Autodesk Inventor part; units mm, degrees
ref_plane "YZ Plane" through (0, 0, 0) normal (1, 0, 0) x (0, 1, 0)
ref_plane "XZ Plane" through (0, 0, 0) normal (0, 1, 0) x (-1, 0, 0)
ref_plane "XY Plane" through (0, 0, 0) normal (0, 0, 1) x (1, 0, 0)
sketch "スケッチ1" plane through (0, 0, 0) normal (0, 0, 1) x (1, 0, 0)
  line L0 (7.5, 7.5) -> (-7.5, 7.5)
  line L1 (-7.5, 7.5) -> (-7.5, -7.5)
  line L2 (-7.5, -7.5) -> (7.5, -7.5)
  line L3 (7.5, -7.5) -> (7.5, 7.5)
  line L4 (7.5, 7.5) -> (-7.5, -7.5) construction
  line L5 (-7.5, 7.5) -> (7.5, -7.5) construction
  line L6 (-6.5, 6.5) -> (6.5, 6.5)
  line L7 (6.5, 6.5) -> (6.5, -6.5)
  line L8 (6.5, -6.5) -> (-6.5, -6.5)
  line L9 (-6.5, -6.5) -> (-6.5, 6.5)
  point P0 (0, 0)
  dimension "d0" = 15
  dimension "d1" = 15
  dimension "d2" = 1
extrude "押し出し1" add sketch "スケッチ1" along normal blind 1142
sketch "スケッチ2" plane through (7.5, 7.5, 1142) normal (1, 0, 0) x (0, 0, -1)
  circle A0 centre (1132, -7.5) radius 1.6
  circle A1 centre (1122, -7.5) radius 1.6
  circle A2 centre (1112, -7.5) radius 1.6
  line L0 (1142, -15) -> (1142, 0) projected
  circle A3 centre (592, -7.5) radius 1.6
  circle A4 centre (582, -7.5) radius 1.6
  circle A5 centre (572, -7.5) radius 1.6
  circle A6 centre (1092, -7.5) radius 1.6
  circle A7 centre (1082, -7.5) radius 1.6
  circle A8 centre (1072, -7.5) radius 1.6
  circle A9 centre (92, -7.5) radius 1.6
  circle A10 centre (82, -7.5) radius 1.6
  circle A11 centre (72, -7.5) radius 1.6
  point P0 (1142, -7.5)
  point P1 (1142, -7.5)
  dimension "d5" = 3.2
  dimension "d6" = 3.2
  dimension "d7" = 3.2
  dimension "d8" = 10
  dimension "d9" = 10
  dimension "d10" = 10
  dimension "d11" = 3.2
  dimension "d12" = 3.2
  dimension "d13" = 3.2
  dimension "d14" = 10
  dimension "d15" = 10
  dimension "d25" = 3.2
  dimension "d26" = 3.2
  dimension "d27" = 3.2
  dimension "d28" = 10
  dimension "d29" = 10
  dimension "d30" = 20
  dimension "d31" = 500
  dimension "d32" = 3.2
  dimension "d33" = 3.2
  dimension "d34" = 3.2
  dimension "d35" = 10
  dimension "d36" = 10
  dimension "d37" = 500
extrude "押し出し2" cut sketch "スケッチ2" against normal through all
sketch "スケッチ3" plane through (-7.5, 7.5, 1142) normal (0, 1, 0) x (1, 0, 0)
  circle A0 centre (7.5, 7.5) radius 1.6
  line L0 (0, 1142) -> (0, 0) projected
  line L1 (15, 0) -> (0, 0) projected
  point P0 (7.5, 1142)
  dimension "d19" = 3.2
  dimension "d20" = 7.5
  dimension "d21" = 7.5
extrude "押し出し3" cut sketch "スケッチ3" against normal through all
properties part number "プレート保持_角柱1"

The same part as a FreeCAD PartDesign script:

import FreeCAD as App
import Part
import Sketcher


def add_polygon(sketch, points):
    """Adds a closed chain of lines whose ends are joined by coincident constraints."""
    first, n = sketch.GeometryCount, len(points)
    for a, b in zip(points, points[1:] + points[:1]):
        sketch.addGeometry(Part.LineSegment(App.Vector(*a, 0), App.Vector(*b, 0)), False)
    for i in range(n):
        sketch.addConstraint(Sketcher.Constraint("Coincident", first + i, 2, first + (i + 1) % n, 1))

doc = App.newDocument("Part")
body = doc.addObject("PartDesign::Body", "Body")

# Sketch on XY plane
sketch1 = body.newObject("Sketcher::SketchObject", "Sketch")
sketch1.AttachmentSupport = (doc.getObject("XY_Plane"), [""])
sketch1.MapMode = "FlatFace"
add_polygon(sketch1, [(8, -8), (8, 8), (-8, 8), (-8, -8)])  # lines 0-3
add_polygon(sketch1, [(-6, -6), (-6, 6), (6, 6), (6, -6)])  # lines 4-7
sketch1.addConstraint(Sketcher.Constraint("Vertical", 0))
sketch1.addConstraint(Sketcher.Constraint("Horizontal", 1))
sketch1.addConstraint(Sketcher.Constraint("Vertical", 2))
sketch1.addConstraint(Sketcher.Constraint("Horizontal", 3))
sketch1.addConstraint(Sketcher.Constraint("Vertical", 4))
sketch1.addConstraint(Sketcher.Constraint("Horizontal", 5))
sketch1.addConstraint(Sketcher.Constraint("Vertical", 6))
sketch1.addConstraint(Sketcher.Constraint("Horizontal", 7))
sketch1.addConstraint(Sketcher.Constraint("Symmetric", 0, 2, 2, 2, -1, 1))
sketch1.addConstraint(Sketcher.Constraint("Symmetric", 4, 2, 6, 2, -1, 1))
sketch1.addConstraint(Sketcher.Constraint("Equal", 3, 0))
sketch1.addConstraint(Sketcher.Constraint("Equal", 7, 4))
sketch1.addConstraint(Sketcher.Constraint("DistanceX", 1, 2, 1, 1, 15.0))
sketch1.addConstraint(Sketcher.Constraint("DistanceX", 1, 2, 4, 2, 1.0))
pad1 = body.newObject("PartDesign::Pad", "Pad")
pad1.Profile = sketch1
pad1.Length = 1142

# Sketch on YZ plane
sketch2 = body.newObject("Sketcher::SketchObject", "Sketch001")
sketch2.AttachmentSupport = (doc.getObject("YZ_Plane"), [""])
sketch2.MapMode = "FlatFace"
sketch2.AttachmentOffset = App.Placement(App.Vector(0, 0, 7.5), App.Rotation())
sketch2.addGeometry(Part.Circle(App.Vector(0, 10, 0), App.Vector(0, 0, 1), 1.6), False)
sketch2.addGeometry(Part.Circle(App.Vector(0, 20, 0), App.Vector(0, 0, 1), 1.6), False)
sketch2.addGeometry(Part.Circle(App.Vector(0, 30, 0), App.Vector(0, 0, 1), 1.6), False)
sketch2.addGeometry(Part.Circle(App.Vector(0, 550, 0), App.Vector(0, 0, 1), 1.6), False)
sketch2.addGeometry(Part.Circle(App.Vector(0, 560, 0), App.Vector(0, 0, 1), 1.6), False)
sketch2.addGeometry(Part.Circle(App.Vector(0, 570, 0), App.Vector(0, 0, 1), 1.6), False)
sketch2.addGeometry(Part.Circle(App.Vector(0, 50, 0), App.Vector(0, 0, 1), 1.6), False)
sketch2.addGeometry(Part.Circle(App.Vector(0, 60, 0), App.Vector(0, 0, 1), 1.6), False)
sketch2.addGeometry(Part.Circle(App.Vector(0, 70, 0), App.Vector(0, 0, 1), 1.6), False)
sketch2.addGeometry(Part.Circle(App.Vector(0, 1050, 0), App.Vector(0, 0, 1), 1.6), False)
sketch2.addGeometry(Part.Circle(App.Vector(0, 1060, 0), App.Vector(0, 0, 1), 1.6), False)
sketch2.addGeometry(Part.Circle(App.Vector(0, 1070, 0), App.Vector(0, 0, 1), 1.6), False)
sketch2.addConstraint(Sketcher.Constraint("Equal", 0, 1))
sketch2.addConstraint(Sketcher.Constraint("Equal", 1, 2))
sketch2.addConstraint(Sketcher.Constraint("Equal", 2, 3))
sketch2.addConstraint(Sketcher.Constraint("Equal", 3, 4))
sketch2.addConstraint(Sketcher.Constraint("Equal", 4, 5))
sketch2.addConstraint(Sketcher.Constraint("Equal", 5, 6))
sketch2.addConstraint(Sketcher.Constraint("Equal", 6, 7))
sketch2.addConstraint(Sketcher.Constraint("Equal", 7, 8))
sketch2.addConstraint(Sketcher.Constraint("Equal", 8, 9))
sketch2.addConstraint(Sketcher.Constraint("Equal", 9, 10))
sketch2.addConstraint(Sketcher.Constraint("Equal", 10, 11))
sketch2.addConstraint(Sketcher.Constraint("PointOnObject", 0, 3, -2))
sketch2.addConstraint(Sketcher.Constraint("PointOnObject", 1, 3, -2))
sketch2.addConstraint(Sketcher.Constraint("PointOnObject", 2, 3, -2))
sketch2.addConstraint(Sketcher.Constraint("PointOnObject", 3, 3, -2))
sketch2.addConstraint(Sketcher.Constraint("PointOnObject", 4, 3, -2))
sketch2.addConstraint(Sketcher.Constraint("PointOnObject", 5, 3, -2))
sketch2.addConstraint(Sketcher.Constraint("PointOnObject", 6, 3, -2))
sketch2.addConstraint(Sketcher.Constraint("PointOnObject", 7, 3, -2))
sketch2.addConstraint(Sketcher.Constraint("PointOnObject", 8, 3, -2))
sketch2.addConstraint(Sketcher.Constraint("PointOnObject", 9, 3, -2))
sketch2.addConstraint(Sketcher.Constraint("PointOnObject", 10, 3, -2))
sketch2.addConstraint(Sketcher.Constraint("PointOnObject", 11, 3, -2))
sketch2.addConstraint(Sketcher.Constraint("Diameter", 0, 3.2))
sketch2.addConstraint(Sketcher.Constraint("DistanceY", -1, 1, 0, 3, 10.0))
sketch2.addConstraint(Sketcher.Constraint("DistanceY", -1, 1, 1, 3, 20.0))
sketch2.addConstraint(Sketcher.Constraint("DistanceY", 1, 3, 2, 3, 10.0))
sketch2.addConstraint(Sketcher.Constraint("DistanceY", 3, 3, 4, 3, 10.0))
sketch2.addConstraint(Sketcher.Constraint("DistanceY", 4, 3, 5, 3, 10.0))
sketch2.addConstraint(Sketcher.Constraint("DistanceY", 2, 3, 6, 3, 20.0))
sketch2.addConstraint(Sketcher.Constraint("DistanceY", 6, 3, 3, 3, 500.0))
sketch2.addConstraint(Sketcher.Constraint("DistanceY", 6, 3, 7, 3, 10.0))
sketch2.addConstraint(Sketcher.Constraint("DistanceY", 7, 3, 8, 3, 10.0))
sketch2.addConstraint(Sketcher.Constraint("DistanceY", 3, 3, 9, 3, 500.0))
sketch2.addConstraint(Sketcher.Constraint("DistanceY", 9, 3, 10, 3, 10.0))
sketch2.addConstraint(Sketcher.Constraint("DistanceY", 10, 3, 11, 3, 10.0))
pocket1 = body.newObject("PartDesign::Pocket", "Pocket")
pocket1.Profile = sketch2
pocket1.Type = "ThroughAll"

# Sketch on XZ plane
sketch3 = body.newObject("Sketcher::SketchObject", "Sketch002")
sketch3.AttachmentSupport = (doc.getObject("XZ_Plane"), [""])
sketch3.MapMode = "FlatFace"
sketch3.AttachmentOffset = App.Placement(App.Vector(0, 0, -7.5), App.Rotation())
sketch3.addGeometry(Part.Circle(App.Vector(0, 1134.5, 0), App.Vector(0, 0, 1), 1.6), False)
sketch3.addConstraint(Sketcher.Constraint("PointOnObject", 0, 3, -2))
sketch3.addConstraint(Sketcher.Constraint("Diameter", 0, 3.2))
sketch3.addConstraint(Sketcher.Constraint("DistanceY", -1, 1, 0, 3, 1134.5))
pocket2 = body.newObject("PartDesign::Pocket", "Pocket001")
pocket2.Profile = sketch3
pocket2.Type = "ThroughAll"
pocket2.Reversed = True

doc.recompute()
